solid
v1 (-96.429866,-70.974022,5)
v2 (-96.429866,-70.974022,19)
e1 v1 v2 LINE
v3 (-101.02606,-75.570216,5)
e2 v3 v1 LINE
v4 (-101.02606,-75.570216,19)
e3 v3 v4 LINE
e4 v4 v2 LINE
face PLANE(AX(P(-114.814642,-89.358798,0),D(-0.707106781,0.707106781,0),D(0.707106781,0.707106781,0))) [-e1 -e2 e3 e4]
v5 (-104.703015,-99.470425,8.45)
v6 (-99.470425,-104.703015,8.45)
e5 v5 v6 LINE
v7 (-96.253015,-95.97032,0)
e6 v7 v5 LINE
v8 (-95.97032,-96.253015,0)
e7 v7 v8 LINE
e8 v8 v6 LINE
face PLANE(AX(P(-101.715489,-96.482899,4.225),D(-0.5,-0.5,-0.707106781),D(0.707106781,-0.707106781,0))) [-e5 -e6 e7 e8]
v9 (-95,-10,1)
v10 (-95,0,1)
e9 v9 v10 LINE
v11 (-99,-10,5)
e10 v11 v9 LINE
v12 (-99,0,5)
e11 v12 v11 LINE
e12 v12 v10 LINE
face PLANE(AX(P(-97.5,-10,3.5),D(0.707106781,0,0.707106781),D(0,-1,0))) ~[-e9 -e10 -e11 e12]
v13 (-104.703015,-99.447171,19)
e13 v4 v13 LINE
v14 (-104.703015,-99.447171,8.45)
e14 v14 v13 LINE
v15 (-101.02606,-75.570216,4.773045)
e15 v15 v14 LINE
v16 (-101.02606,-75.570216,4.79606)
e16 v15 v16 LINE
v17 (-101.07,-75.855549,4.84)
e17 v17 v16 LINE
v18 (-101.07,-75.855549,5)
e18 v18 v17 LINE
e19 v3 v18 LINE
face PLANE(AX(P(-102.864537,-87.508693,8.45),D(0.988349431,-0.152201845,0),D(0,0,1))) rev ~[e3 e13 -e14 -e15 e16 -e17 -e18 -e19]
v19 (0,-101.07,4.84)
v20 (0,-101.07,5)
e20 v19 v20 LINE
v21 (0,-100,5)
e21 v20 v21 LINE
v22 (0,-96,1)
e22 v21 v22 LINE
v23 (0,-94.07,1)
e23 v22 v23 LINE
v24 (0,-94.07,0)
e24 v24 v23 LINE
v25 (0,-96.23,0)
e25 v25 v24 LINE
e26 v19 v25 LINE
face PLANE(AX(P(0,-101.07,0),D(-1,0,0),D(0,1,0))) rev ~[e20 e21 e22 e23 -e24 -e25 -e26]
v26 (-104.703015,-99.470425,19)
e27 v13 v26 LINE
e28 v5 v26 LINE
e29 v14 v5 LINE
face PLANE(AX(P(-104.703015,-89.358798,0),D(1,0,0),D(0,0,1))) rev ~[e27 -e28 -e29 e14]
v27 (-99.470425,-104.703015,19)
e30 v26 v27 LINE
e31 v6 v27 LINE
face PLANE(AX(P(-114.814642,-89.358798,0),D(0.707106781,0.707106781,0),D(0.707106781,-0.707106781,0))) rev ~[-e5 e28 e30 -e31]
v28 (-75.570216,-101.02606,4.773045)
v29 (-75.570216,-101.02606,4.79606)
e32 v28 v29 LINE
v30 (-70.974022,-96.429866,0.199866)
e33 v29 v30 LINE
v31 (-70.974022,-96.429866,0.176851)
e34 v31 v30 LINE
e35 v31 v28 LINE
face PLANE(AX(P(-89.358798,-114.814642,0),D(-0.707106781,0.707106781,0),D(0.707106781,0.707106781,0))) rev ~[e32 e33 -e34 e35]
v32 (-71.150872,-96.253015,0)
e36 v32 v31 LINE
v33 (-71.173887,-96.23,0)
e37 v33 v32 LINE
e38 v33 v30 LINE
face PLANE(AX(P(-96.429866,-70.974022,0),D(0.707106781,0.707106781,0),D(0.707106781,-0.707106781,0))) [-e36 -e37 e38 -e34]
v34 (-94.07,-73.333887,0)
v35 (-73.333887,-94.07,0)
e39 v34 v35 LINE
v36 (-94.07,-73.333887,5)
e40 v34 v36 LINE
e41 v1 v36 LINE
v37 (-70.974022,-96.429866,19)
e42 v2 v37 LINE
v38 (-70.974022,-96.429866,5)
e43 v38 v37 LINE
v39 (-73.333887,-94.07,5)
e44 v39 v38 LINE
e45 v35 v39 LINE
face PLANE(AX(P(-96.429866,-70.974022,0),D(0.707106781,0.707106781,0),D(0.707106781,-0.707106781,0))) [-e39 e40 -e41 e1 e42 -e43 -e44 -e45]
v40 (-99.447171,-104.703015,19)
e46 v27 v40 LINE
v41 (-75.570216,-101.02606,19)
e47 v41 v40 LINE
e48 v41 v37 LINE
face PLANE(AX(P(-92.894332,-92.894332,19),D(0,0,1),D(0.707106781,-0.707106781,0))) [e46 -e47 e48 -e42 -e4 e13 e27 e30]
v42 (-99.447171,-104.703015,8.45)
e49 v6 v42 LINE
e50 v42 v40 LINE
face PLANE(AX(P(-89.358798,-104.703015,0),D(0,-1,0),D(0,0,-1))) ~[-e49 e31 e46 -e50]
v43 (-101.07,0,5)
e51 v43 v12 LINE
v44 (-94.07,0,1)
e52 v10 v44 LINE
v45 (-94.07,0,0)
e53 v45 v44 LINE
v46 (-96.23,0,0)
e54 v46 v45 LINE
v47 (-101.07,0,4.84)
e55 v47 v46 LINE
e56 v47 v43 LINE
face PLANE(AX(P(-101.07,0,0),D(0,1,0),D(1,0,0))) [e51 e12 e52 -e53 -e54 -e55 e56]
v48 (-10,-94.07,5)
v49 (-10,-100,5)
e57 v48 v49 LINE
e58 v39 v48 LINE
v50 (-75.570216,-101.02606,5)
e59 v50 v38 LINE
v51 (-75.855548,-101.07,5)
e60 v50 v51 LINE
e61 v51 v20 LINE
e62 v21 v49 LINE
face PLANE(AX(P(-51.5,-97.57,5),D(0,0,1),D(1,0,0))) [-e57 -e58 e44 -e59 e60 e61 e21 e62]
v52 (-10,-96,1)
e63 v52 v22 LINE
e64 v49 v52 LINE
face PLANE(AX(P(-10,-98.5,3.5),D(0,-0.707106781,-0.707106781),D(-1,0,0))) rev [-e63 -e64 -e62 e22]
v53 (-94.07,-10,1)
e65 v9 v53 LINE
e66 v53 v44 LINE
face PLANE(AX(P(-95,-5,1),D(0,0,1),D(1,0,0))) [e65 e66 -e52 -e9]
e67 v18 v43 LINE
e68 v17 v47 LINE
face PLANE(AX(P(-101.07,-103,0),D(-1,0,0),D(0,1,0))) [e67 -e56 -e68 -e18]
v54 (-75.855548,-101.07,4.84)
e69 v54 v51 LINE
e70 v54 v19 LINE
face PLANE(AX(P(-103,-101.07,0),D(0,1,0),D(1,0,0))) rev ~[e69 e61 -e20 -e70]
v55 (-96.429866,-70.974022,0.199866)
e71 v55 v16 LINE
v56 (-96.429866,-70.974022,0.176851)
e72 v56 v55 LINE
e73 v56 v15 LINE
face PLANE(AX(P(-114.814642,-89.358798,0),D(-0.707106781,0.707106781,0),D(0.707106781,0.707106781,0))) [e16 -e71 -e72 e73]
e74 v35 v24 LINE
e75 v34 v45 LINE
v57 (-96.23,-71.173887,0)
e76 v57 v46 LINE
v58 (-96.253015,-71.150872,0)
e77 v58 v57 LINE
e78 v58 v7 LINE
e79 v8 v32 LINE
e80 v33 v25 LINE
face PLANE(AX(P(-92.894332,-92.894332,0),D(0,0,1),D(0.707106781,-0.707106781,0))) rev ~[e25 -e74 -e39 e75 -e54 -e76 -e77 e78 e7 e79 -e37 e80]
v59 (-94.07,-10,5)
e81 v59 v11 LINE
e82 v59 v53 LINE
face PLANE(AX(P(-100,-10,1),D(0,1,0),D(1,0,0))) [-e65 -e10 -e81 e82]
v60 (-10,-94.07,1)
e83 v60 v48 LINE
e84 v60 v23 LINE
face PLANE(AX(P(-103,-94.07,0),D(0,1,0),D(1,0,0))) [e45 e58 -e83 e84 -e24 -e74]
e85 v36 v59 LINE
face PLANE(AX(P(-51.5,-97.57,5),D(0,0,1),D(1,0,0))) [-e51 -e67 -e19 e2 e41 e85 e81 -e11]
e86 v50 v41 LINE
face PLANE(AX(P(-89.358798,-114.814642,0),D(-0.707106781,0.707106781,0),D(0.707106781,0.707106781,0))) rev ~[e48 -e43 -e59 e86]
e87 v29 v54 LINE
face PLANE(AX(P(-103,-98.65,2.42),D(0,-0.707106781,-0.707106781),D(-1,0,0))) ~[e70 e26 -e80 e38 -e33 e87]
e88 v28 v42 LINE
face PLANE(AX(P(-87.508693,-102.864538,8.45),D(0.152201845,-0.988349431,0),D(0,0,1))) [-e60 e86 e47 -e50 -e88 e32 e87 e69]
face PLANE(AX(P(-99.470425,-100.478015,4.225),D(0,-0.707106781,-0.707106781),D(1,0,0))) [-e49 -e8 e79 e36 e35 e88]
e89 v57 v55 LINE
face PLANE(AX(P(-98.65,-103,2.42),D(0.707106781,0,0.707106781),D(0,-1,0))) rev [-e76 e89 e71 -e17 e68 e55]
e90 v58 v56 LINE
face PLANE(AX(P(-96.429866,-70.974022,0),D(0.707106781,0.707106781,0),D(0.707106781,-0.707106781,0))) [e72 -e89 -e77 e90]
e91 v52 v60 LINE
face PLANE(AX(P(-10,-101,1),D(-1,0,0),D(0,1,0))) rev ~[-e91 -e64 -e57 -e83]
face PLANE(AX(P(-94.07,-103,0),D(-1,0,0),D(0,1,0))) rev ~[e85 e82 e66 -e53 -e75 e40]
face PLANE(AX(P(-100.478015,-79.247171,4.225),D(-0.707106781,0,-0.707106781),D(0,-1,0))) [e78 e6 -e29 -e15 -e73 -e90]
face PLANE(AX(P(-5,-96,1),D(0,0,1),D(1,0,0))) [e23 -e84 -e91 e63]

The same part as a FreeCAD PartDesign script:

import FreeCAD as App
import Part
import Sketcher
Q = App.Units.Quantity


def edges_at(feature, points):
    """Names of the edges that pass closest to the given points."""
    edges = feature.Shape.Edges
    near = lambda p: min(range(len(edges)), key=lambda i: edges[i].distToShape(Part.Vertex(*p))[0])
    return sorted({f"Edge{near(p) + 1}" for p in points})


def add_polygon(sketch, points):
    """Adds a closed chain of lines whose ends are joined by coincident constraints."""
    first, n = sketch.GeometryCount, len(points)
    for a, b in zip(points, points[1:] + points[:1]):
        sketch.addGeometry(Part.LineSegment(App.Vector(*a, 0), App.Vector(*b, 0)), False)
    for i in range(n):
        sketch.addConstraint(Sketcher.Constraint("Coincident", first + i, 2, first + (i + 1) % n, 1))

doc = App.newDocument("Part")
body = doc.addObject("PartDesign::Body", "Body")

# Sketch on XY plane
sketch1 = doc.addObject("Sketcher::SketchObject", "Sketch")
body.addObject(sketch1)
sketch1.AttachmentSupport = (doc.XY_Plane, [""])
sketch1.MapMode = "FlatFace"
add_polygon(sketch1, [(0, 60), (0, 0), (32, 0), (32, 60)])  # lines 0-3
sketch1.addConstraint([
    Sketcher.Constraint("Vertical", 0),
    Sketcher.Constraint("Horizontal", 1),
    Sketcher.Constraint("Vertical", 2),
    Sketcher.Constraint("Horizontal", 3),
    Sketcher.Constraint("Coincident", 0, 2, -1, 1),
    Sketcher.Constraint("DistanceX", 1, 1, 1, 2, Q("32 mm")),
    Sketcher.Constraint("DistanceY", 0, 2, 0, 1, Q("60 mm")),
])
pad1 = doc.addObject("PartDesign::Pad", "Pad")
body.addObject(pad1)
pad1.Profile = sketch1
pad1.Length = 19
body2 = doc.addObject("PartDesign::Body", "Body001")
doc.recompute()

body.Placement = App.Placement(App.Vector(-93.509515, -135.935922, 0), App.Rotation(App.Vector(0, 0, 1), 45))
boolean = doc.addObject("PartDesign::Boolean", "Boolean")
body2.addObject(boolean)
boolean.Type = "Fuse"
boolean.addObjects([body])
body3 = doc.addObject("PartDesign::Body", "Body002")

# Sketch on XY plane
sketch2 = doc.addObject("Sketcher::SketchObject", "Sketch001")
body3.addObject(sketch2)
sketch2.AttachmentSupport = (doc.getObject("XY_Plane002"), [""])
sketch2.MapMode = "FlatFace"
add_polygon(sketch2, [(-10, -70), (-10, -80), (0, -80), (0, -70)])  # lines 0-3
sketch2.addConstraint([
    Sketcher.Constraint("Vertical", 0),
    Sketcher.Constraint("Horizontal", 1),
    Sketcher.Constraint("Vertical", 2),
    Sketcher.Constraint("Horizontal", 3),
    Sketcher.Constraint("PointOnObject", 1, 2, -2),
    Sketcher.Constraint("Equal", 3, 0),
    Sketcher.Constraint("DistanceX", 1, 1, 1, 2, Q("10 mm")),
    Sketcher.Constraint("DistanceY", 0, 2, -1, 1, Q("80 mm")),
])
pad2 = doc.addObject("PartDesign::Pad", "Pad001")
body3.addObject(pad2)
pad2.Profile = sketch2
pad2.Length = 10
doc.recompute()

chamfer = doc.addObject("PartDesign::Chamfer", "Chamfer")
body3.addObject(chamfer)
chamfer.Base = (pad2, edges_at(pad2, [(-5, -80, 0)]))
chamfer.Size = 5
body4 = doc.addObject("PartDesign::Body", "Body003")
doc.recompute()

body3.Placement = App.Placement(App.Vector(0, -21, 1), App.Rotation(App.Vector(0, 0, 1), 0))
boolean2 = doc.addObject("PartDesign::Boolean", "Boolean001")
body4.addObject(boolean2)
boolean2.Type = "Fuse"
boolean2.addObjects([body3])
body5 = doc.addObject("PartDesign::Body", "Body004")

# Sketch on XY plane
sketch3 = doc.addObject("Sketcher::SketchObject", "Sketch002")
body5.addObject(sketch3)
sketch3.AttachmentSupport = (doc.getObject("XY_Plane004"), [""])
sketch3.MapMode = "FlatFace"
add_polygon(sketch3, [(-103, -96), (-103, -103), (0, -103), (0, -96)])  # lines 0-3
sketch3.addConstraint([
    Sketcher.Constraint("Vertical", 0),
    Sketcher.Constraint("Horizontal", 1),
    Sketcher.Constraint("Vertical", 2),
    Sketcher.Constraint("Horizontal", 3),
    Sketcher.Constraint("PointOnObject", 1, 2, -2),
    Sketcher.Constraint("DistanceX", 1, 1, 1, 2, Q("103 mm")),
    Sketcher.Constraint("DistanceY", 0, 2, 0, 1, Q("7 mm")),
    Sketcher.Constraint("DistanceY", 0, 2, -1, 1, Q("103 mm")),
])
pad3 = doc.addObject("PartDesign::Pad", "Pad002")
body5.addObject(pad3)
pad3.Profile = sketch3
pad3.Length = 5
doc.recompute()

chamfer2 = doc.addObject("PartDesign::Chamfer", "Chamfer001")
body5.addObject(chamfer2)
chamfer2.Base = (pad3, edges_at(pad3, [(-51.5, -103, 0)]))
chamfer2.Size = 4.84
body6 = doc.addObject("PartDesign::Body", "Body005")
doc.recompute()

body5.Placement = App.Placement(App.Vector(0, 1.93, 0), App.Rotation(App.Vector(0, 0, 1), 0))
boolean3 = doc.addObject("PartDesign::Boolean", "Boolean002")
body6.addObject(boolean3)
boolean3.Type = "Fuse"
boolean3.addObjects([body5])
doc.recompute()

boolean4 = doc.addObject("PartDesign::Boolean", "Boolean003")
body6.addObject(boolean4)
boolean4.Type = "Cut"
boolean4.addObjects([body4])
body7 = doc.addObject("PartDesign::Body", "Body006")

# Sketch on XY plane
sketch4 = doc.addObject("Sketcher::SketchObject", "Sketch003")
body7.addObject(sketch4)
sketch4.AttachmentSupport = (doc.getObject("XY_Plane006"), [""])
sketch4.MapMode = "FlatFace"
add_polygon(sketch4, [(0, 25), (0, 0), (40, 0), (40, 25)])  # lines 0-3
sketch4.addConstraint([
    Sketcher.Constraint("Vertical", 0),
    Sketcher.Constraint("Horizontal", 1),
    Sketcher.Constraint("Vertical", 2),
    Sketcher.Constraint("Horizontal", 3),
    Sketcher.Constraint("Coincident", 0, 2, -1, 1),
    Sketcher.Constraint("DistanceX", 1, 1, 1, 2, Q("40 mm")),
    Sketcher.Constraint("DistanceY", 0, 2, 0, 1, Q("25 mm")),
])
pad4 = doc.addObject("PartDesign::Pad", "Pad003")
body7.addObject(pad4)
pad4.Profile = sketch4
pad4.Length = 55
body8 = doc.addObject("PartDesign::Body", "Body007")
doc.recompute()

body7.Placement = App.Placement(App.Vector(0, 0, 0), App.Rotation(App.Vector(1, 0, 0), 20))
boolean5 = doc.addObject("PartDesign::Boolean", "Boolean004")
body8.addObject(boolean5)
boolean5.Type = "Fuse"
boolean5.addObjects([body7])
body9 = doc.addObject("PartDesign::Body", "Body008")
doc.recompute()

body8.Placement = App.Placement(App.Vector(-125.987533, -98.117475, -15.593468), App.Rotation(App.Vector(0, 0, 1), 315))
boolean6 = doc.addObject("PartDesign::Boolean", "Boolean005")
body9.addObject(boolean6)
boolean6.Type = "Fuse"
boolean6.addObjects([body8])
body10 = doc.addObject("PartDesign::Body", "Body009")

# Sketch on XY plane
sketch5 = doc.addObject("Sketcher::SketchObject", "Sketch004")
body10.addObject(sketch5)
sketch5.AttachmentSupport = (doc.getObject("XY_Plane009"), [""])
sketch5.MapMode = "FlatFace"
add_polygon(sketch5, [(-82, 0), (-82, -10), (-72, -10), (-72, 0)])  # lines 0-3
sketch5.addConstraint([
    Sketcher.Constraint("Vertical", 0),
    Sketcher.Constraint("Horizontal", 1),
    Sketcher.Constraint("Vertical", 2),
    Sketcher.Constraint("Horizontal", 3),
    Sketcher.Constraint("PointOnObject", 2, 2, -1),
    Sketcher.Constraint("Equal", 3, 0),
    Sketcher.Constraint("DistanceX", 1, 1, 1, 2, Q("10 mm")),
    Sketcher.Constraint("DistanceX", 0, 2, -1, 1, Q("82 mm")),
])
pad5 = doc.addObject("PartDesign::Pad", "Pad004")
body10.addObject(pad5)
pad5.Profile = sketch5
pad5.Length = 10
doc.recompute()

chamfer3 = doc.addObject("PartDesign::Chamfer", "Chamfer002")
body10.addObject(chamfer3)
chamfer3.Base = (pad5, edges_at(pad5, [(-82, -5, 0)]))
chamfer3.Size = 5
body11 = doc.addObject("PartDesign::Body", "Body010")
doc.recompute()

body10.Placement = App.Placement(App.Vector(-18, 0, 1), App.Rotation(App.Vector(0, 0, 1), 0))
boolean7 = doc.addObject("PartDesign::Boolean", "Boolean006")
body11.addObject(boolean7)
boolean7.Type = "Fuse"
boolean7.addObjects([body10])
body12 = doc.addObject("PartDesign::Body", "Body011")

# Sketch on XY plane
sketch6 = doc.addObject("Sketcher::SketchObject", "Sketch005")
body12.addObject(sketch6)
sketch6.AttachmentSupport = (doc.getObject("XY_Plane011"), [""])
sketch6.MapMode = "FlatFace"
add_polygon(sketch6, [(-103, 0), (-103, -103), (-96, -103), (-96, 0)])  # lines 0-3
sketch6.addConstraint([
    Sketcher.Constraint("Vertical", 0),
    Sketcher.Constraint("Horizontal", 1),
    Sketcher.Constraint("Vertical", 2),
    Sketcher.Constraint("Horizontal", 3),
    Sketcher.Constraint("PointOnObject", 2, 2, -1),
    Sketcher.Constraint("DistanceX", 1, 1, 1, 2, Q("7 mm")),
    Sketcher.Constraint("DistanceY", 0, 2, 0, 1, Q("103 mm")),
    Sketcher.Constraint("DistanceX", 0, 2, -1, 1, Q("103 mm")),
])
pad6 = doc.addObject("PartDesign::Pad", "Pad005")
body12.addObject(pad6)
pad6.Profile = sketch6
pad6.Length = 5
doc.recompute()

chamfer4 = doc.addObject("PartDesign::Chamfer", "Chamfer003")
body12.addObject(chamfer4)
chamfer4.Base = (pad6, edges_at(pad6, [(-103, -51.5, 0)]))
chamfer4.Size = 4.84
body13 = doc.addObject("PartDesign::Body", "Body012")
body13.AllowCompound = True
doc.recompute()

body12.Placement = App.Placement(App.Vector(1.93, 0, 0), App.Rotation(App.Vector(0, 0, 1), 0))
boolean8 = doc.addObject("PartDesign::Boolean", "Boolean007")
body13.addObject(boolean8)
boolean8.Type = "Fuse"
boolean8.addObjects([body12])
doc.recompute()

boolean9 = doc.addObject("PartDesign::Boolean", "Boolean008")
body13.addObject(boolean9)
boolean9.Type = "Cut"
boolean9.addObjects([body11])
doc.recompute()

boolean10 = doc.addObject("PartDesign::Boolean", "Boolean009")
body13.addObject(boolean10)
boolean10.Type = "Cut"
boolean10.addObjects([body9])
doc.recompute()

boolean11 = doc.addObject("PartDesign::Boolean", "Boolean010")
body13.addObject(boolean11)
boolean11.Type = "Fuse"
boolean11.addObjects([body6])
doc.recompute()

boolean12 = doc.addObject("PartDesign::Boolean", "Boolean011")
body13.addObject(boolean12)
boolean12.Type = "Cut"
boolean12.addObjects([body2])
body14 = doc.addObject("PartDesign::Body", "Body013")

# Sketch on XY plane
sketch7 = doc.addObject("Sketcher::SketchObject", "Sketch006")
body14.addObject(sketch7)
sketch7.AttachmentSupport = (doc.getObject("XY_Plane013"), [""])
sketch7.MapMode = "FlatFace"
add_polygon(sketch7, [(0, 26), (0, 0), (36, 0), (36, 26)])  # lines 0-3
sketch7.addConstraint([
    Sketcher.Constraint("Vertical", 0),
    Sketcher.Constraint("Horizontal", 1),
    Sketcher.Constraint("Vertical", 2),
    Sketcher.Constraint("Horizontal", 3),
    Sketcher.Constraint("Coincident", 0, 2, -1, 1),
    Sketcher.Constraint("DistanceX", 1, 1, 1, 2, Q("36 mm")),
    Sketcher.Constraint("DistanceY", 0, 2, 0, 1, Q("26 mm")),
])
pad7 = doc.addObject("PartDesign::Pad", "Pad006")
body14.addObject(pad7)
pad7.Profile = sketch7
pad7.Length = 19
body15 = doc.addObject("PartDesign::Body", "Body014")
doc.recompute()

body14.Placement = App.Placement(App.Vector(-114.814642, -89.358798, 0), App.Rotation(App.Vector(0, 0, 1), 315))
boolean13 = doc.addObject("PartDesign::Boolean", "Boolean012")
body15.addObject(boolean13)
boolean13.Type = "Fuse"
boolean13.addObjects([body14])
doc.recompute()

chamfer5 = doc.addObject("PartDesign::Chamfer", "Chamfer004")
body15.addObject(chamfer5)
chamfer5.Base = (boolean13, edges_at(boolean13, [(-114.815, -89.359, 9.5), (-89.359, -114.815, 9.5)]))
chamfer5.Size = 14.3
doc.recompute()

chamfer6 = doc.addObject("PartDesign::Chamfer", "Chamfer005")
body15.addObject(chamfer6)
chamfer6.Base = (chamfer5, edges_at(chamfer5, [(-104.703, -89.359, 0), (-102.087, -102.087, 0), (-89.359, -104.703, 0)]))
chamfer6.Size = 8.45
doc.recompute()

chamfer7 = doc.addObject("PartDesign::Chamfer", "Chamfer006")
body15.addObject(chamfer7)
chamfer7.Base = (chamfer6, edges_at(chamfer6, [(-79.247, -104.703, 13.725)]))
chamfer7.ChamferType = "Two distances"
chamfer7.Size = 5.2
chamfer7.Size2 = 20.2
doc.recompute()

chamfer8 = doc.addObject("PartDesign::Chamfer", "Chamfer007")
body15.addObject(chamfer8)
chamfer8.Base = (chamfer7, edges_at(chamfer7, [(-104.703, -79.247, 13.725)]))
chamfer8.ChamferType = "Two distances"
chamfer8.Size = 5.2
chamfer8.Size2 = 20.2
doc.recompute()

boolean14 = doc.addObject("PartDesign::Boolean", "Boolean013")
body15.addObject(boolean14)
boolean14.Type = "Fuse"
boolean14.addObjects([body13])

doc.recompute()
